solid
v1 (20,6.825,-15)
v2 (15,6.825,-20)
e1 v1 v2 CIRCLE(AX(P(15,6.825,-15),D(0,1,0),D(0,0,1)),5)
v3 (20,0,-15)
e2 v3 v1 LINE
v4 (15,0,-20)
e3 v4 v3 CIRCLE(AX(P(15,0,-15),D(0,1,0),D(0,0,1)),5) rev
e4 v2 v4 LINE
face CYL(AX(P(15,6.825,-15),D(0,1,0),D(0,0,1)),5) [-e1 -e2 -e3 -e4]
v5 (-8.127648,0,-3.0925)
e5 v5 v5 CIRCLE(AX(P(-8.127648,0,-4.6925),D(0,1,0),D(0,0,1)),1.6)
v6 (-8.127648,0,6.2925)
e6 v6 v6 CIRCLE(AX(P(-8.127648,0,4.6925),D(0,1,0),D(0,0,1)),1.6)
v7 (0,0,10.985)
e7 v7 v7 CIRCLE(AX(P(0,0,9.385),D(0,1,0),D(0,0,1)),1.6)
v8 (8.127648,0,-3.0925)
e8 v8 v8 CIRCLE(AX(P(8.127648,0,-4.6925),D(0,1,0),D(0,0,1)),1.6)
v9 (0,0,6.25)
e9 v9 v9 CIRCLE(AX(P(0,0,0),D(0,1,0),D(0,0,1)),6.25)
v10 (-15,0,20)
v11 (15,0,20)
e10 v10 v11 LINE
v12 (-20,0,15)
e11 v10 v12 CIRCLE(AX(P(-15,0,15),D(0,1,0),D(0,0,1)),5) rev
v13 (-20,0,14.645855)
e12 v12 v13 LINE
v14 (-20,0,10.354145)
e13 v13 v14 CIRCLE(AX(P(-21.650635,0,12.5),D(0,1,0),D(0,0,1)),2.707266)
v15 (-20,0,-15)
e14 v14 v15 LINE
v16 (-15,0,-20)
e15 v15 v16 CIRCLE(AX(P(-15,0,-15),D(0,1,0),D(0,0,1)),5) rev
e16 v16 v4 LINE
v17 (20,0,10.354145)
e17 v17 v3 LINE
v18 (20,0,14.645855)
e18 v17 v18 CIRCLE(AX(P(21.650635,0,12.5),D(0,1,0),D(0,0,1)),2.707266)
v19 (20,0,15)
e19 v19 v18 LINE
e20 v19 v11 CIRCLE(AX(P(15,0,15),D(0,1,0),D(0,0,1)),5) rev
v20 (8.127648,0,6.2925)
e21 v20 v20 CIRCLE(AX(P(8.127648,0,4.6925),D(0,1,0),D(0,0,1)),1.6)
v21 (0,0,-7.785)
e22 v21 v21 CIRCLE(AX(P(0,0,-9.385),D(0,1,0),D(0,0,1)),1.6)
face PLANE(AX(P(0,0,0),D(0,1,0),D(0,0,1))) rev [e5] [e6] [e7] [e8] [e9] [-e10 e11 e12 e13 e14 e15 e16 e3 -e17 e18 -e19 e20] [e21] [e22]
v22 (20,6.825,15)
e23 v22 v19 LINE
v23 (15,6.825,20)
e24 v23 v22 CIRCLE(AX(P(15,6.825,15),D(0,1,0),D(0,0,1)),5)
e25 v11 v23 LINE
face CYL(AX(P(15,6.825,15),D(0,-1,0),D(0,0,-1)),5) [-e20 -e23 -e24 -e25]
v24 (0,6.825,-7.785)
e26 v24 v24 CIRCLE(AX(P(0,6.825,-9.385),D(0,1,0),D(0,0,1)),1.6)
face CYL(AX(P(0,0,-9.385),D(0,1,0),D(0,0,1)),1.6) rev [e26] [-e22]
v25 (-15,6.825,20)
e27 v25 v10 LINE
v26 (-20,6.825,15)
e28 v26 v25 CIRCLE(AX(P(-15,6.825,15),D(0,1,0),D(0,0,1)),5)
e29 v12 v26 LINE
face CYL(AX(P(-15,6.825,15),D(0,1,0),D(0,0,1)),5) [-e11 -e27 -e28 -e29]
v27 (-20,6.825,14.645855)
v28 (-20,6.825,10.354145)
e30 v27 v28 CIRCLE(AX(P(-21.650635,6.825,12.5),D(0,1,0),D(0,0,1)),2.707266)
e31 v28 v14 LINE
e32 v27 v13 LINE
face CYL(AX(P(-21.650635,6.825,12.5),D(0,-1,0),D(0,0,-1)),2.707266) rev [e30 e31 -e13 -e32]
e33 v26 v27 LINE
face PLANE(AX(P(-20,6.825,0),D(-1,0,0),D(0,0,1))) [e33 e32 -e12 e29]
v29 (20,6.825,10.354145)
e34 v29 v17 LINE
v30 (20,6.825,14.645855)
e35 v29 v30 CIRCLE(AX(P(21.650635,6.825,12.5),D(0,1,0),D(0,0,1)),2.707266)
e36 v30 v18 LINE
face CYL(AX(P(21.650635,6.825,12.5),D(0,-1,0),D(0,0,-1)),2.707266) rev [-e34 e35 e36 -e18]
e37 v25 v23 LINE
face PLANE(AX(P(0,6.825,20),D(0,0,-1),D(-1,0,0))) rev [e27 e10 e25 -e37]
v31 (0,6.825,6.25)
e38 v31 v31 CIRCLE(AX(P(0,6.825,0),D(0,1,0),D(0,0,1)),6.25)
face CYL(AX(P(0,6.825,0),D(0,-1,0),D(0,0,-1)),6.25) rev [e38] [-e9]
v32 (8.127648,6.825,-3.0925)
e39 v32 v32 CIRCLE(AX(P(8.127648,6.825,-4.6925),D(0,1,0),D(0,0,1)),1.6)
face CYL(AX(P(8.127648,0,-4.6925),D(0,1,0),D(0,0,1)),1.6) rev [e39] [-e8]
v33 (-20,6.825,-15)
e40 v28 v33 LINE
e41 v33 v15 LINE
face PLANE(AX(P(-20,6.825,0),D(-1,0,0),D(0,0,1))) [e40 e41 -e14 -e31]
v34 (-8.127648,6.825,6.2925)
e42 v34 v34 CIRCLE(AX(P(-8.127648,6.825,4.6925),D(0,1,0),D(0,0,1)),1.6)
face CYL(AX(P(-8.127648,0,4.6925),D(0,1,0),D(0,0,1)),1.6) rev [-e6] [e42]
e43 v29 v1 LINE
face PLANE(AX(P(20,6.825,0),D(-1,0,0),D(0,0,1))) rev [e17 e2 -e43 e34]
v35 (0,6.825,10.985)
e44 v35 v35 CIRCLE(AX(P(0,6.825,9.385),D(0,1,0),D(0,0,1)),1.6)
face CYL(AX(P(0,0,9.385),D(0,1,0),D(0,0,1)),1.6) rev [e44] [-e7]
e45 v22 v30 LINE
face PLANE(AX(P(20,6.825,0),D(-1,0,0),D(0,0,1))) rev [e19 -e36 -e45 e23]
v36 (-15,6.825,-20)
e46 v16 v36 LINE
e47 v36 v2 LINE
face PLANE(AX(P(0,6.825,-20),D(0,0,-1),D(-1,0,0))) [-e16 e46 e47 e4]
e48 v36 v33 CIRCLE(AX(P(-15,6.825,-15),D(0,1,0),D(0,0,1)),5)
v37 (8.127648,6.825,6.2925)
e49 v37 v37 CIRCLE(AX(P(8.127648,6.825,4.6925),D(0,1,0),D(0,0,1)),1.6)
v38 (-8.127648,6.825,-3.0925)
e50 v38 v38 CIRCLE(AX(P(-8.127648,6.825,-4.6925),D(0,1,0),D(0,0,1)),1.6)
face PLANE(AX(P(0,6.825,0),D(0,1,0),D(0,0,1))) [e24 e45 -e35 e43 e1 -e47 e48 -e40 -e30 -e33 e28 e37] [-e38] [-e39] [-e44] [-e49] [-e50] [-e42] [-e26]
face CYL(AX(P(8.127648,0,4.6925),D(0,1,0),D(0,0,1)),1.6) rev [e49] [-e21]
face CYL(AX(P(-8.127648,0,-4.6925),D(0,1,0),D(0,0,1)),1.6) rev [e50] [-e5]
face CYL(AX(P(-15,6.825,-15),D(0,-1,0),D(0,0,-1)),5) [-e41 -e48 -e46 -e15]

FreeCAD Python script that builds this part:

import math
import FreeCAD as App
import Part
import Sketcher
from FreeCAD import Vector
Q = App.Units.Quantity


def edges_at(feature, points):
    """Names of the edges that pass closest to the given points."""
    edges = feature.Shape.Edges
    near = lambda p: min(range(len(edges)), key=lambda i: edges[i].distToShape(Part.Vertex(*p))[0])
    return sorted({f"Edge{near(p) + 1}" for p in points})

doc = App.newDocument("Part")
params = doc.addObject("Spreadsheet::Sheet", "Params")
for row, (alias, value) in enumerate([
    ("sketch1_diameter", "12.5 mm"),
    ("sketch1_width", "40 mm"),
    ("pad1_length", "6.825 mm"),
    ("sketch2_diameter", "3.2 mm"),
    ("fillet_radius", "5 mm"),
], start=1):
    params.set(f"A{row}", alias)
    params.set(f"B{row}", "=" + value)
    params.setAlias(f"B{row}", alias)

body = doc.addObject("PartDesign::Body", "Body")

# Sketch on XZ plane
sketch1 = doc.addObject("Sketcher::SketchObject", "Sketch")
body.addObject(sketch1)
sketch1.AttachmentSupport = (doc.XZ_Plane, [""])
sketch1.MapMode = "FlatFace"
sketch1.addGeometry([
    Part.LineSegment(Vector(-20, 14.6, 0), Vector(-20, 20, 0)),  # 0
    Part.LineSegment(Vector(-20, 20, 0), Vector(20, 20, 0)),  # 1
    Part.LineSegment(Vector(20, 20, 0), Vector(20, 14.6, 0)),  # 2
    Part.ArcOfCircle(Part.Circle(Vector(21.7, 12.5, 0), Vector(0, 0, 1), 2.7), math.radians(128), math.radians(232)),  # 3
    Part.LineSegment(Vector(20, 10.4, 0), Vector(20, -20, 0)),  # 4
    Part.LineSegment(Vector(20, -20, 0), Vector(-20, -20, 0)),  # 5
    Part.LineSegment(Vector(-20, -20, 0), Vector(-20, 10.4, 0)),  # 6
    Part.ArcOfCircle(Part.Circle(Vector(-21.7, 12.5, 0), Vector(0, 0, 1), 2.7), math.radians(-52), math.radians(0)),  # 7
    Part.ArcOfCircle(Part.Circle(Vector(-21.7, 12.5, 0), Vector(0, 0, 1), 2.7), math.radians(0), math.radians(52)),  # 8
    Part.Circle(Vector(0, 0, 0), Vector(0, 0, 1), 6.2),  # 9
], False)
sketch1.addConstraint([
    Sketcher.Constraint("Coincident", 0, 2, 1, 1),
    Sketcher.Constraint("Coincident", 1, 2, 2, 1),
    Sketcher.Constraint("Coincident", 2, 2, 3, 1),
    Sketcher.Constraint("Coincident", 3, 2, 4, 1),
    Sketcher.Constraint("Coincident", 4, 2, 5, 1),
    Sketcher.Constraint("Coincident", 5, 2, 6, 1),
    Sketcher.Constraint("Coincident", 6, 2, 7, 1),
    Sketcher.Constraint("Tangent", 7, 2, 8, 1),
    Sketcher.Constraint("Coincident", 8, 2, 0, 1),
    Sketcher.Constraint("Vertical", 0),
    Sketcher.Constraint("Horizontal", 1),
    Sketcher.Constraint("Vertical", 2),
    Sketcher.Constraint("Vertical", 4),
    Sketcher.Constraint("Horizontal", 5),
    Sketcher.Constraint("Vertical", 6),
    Sketcher.Constraint("Coincident", 9, 3, -1, 1),
    Sketcher.Constraint("Equal", 3, 7),
    Sketcher.Constraint("Equal", 7, 8),
    Sketcher.Constraint("Symmetric", 0, 2, 4, 2, -1, 1),
    Sketcher.Constraint("Symmetric", 3, 3, 7, 3, -2),
    Sketcher.Constraint("Horizontal", 3, 2, 6, 2),
    Sketcher.Constraint("Horizontal", 8, 3, 7, 2),
    Sketcher.Constraint("Horizontal", 2, 2, 8, 2),
    Sketcher.Constraint("Diameter", 9, Q("12.5 mm")),
    Sketcher.Constraint("DistanceX", 1, 1, 1, 2, Q("40 mm")),
    Sketcher.Constraint("DistanceY", -1, 1, 0, 2, Q("20 mm")),
    Sketcher.Constraint("DistanceY", -1, 1, 3, 3, Q("12.5 mm")),
    Sketcher.Constraint("Radius", 3, Q("2.707266 mm")),
    Sketcher.Constraint("DistanceY", 0, 1, 0, 2, Q("5.354145 mm")),
])
sketch1.setExpression("Constraints[23]", "Params.sketch1_diameter")
sketch1.setExpression("Constraints[24]", "Params.sketch1_width")
pad1 = doc.addObject("PartDesign::Pad", "Pad")
body.addObject(pad1)
pad1.Profile = sketch1
pad1.setExpression("Length", "Params.pad1_length")
pad1.Reversed = True

# Sketch on XZ plane
sketch2 = doc.addObject("Sketcher::SketchObject", "Sketch001")
body.addObject(sketch2)
sketch2.AttachmentSupport = (doc.XZ_Plane, [""])
sketch2.MapMode = "FlatFace"
sketch2.AttachmentOffset = App.Placement(Vector(0, 0, -6.825), App.Rotation())
sketch2.addGeometry([
    Part.Circle(Vector(0, 9.4, 0), Vector(0, 0, 1), 1.6),  # 0
    Part.Circle(Vector(-8.1, 4.7, 0), Vector(0, 0, 1), 1.6),  # 1
    Part.Circle(Vector(-8.1, -4.7, 0), Vector(0, 0, 1), 1.6),  # 2
    Part.Circle(Vector(0, -9.4, 0), Vector(0, 0, 1), 1.6),  # 3
    Part.Circle(Vector(8.1, -4.7, 0), Vector(0, 0, 1), 1.6),  # 4
    Part.Circle(Vector(8.1, 4.7, 0), Vector(0, 0, 1), 1.6),  # 5
], False)
sketch2.addConstraint([
    Sketcher.Constraint("Equal", 0, 1),
    Sketcher.Constraint("Equal", 1, 2),
    Sketcher.Constraint("Equal", 2, 3),
    Sketcher.Constraint("Equal", 3, 4),
    Sketcher.Constraint("Equal", 4, 5),
    Sketcher.Constraint("Symmetric", 0, 3, 3, 3, -1, 1),
    Sketcher.Constraint("Symmetric", 1, 3, 4, 3, -1, 1),
    Sketcher.Constraint("Symmetric", 2, 3, 5, 3, -1, 1),
    Sketcher.Constraint("Symmetric", 2, 3, 4, 3, -2),
    Sketcher.Constraint("PointOnObject", 0, 3, -2),
    Sketcher.Constraint("Diameter", 0, Q("3.2 mm")),
    Sketcher.Constraint("DistanceY", 3, 3, 0, 3, Q("18.77 mm")),
    Sketcher.Constraint("DistanceY", 2, 3, 1, 3, Q("9.385 mm")),
    Sketcher.Constraint("DistanceX", 1, 3, -1, 1, Q("8.127648 mm")),
])
sketch2.setExpression("Constraints[10]", "Params.sketch2_diameter")
pocket1 = doc.addObject("PartDesign::Pocket", "Pocket")
body.addObject(pocket1)
pocket1.Profile = sketch2
pocket1.Type = "ThroughAll"
pocket1.Reversed = True
doc.recompute()

fillet = doc.addObject("PartDesign::Fillet", "Fillet")
body.addObject(fillet)
fillet.Base = (pocket1, edges_at(pocket1, [
    (-20, 3.413, -20),
    (20, 3.413, -20),
    (20, 3.413, 20),
    (-20, 3.413, 20),
]))
fillet.setExpression("Radius", "Params.fillet_radius")

doc.recompute()
